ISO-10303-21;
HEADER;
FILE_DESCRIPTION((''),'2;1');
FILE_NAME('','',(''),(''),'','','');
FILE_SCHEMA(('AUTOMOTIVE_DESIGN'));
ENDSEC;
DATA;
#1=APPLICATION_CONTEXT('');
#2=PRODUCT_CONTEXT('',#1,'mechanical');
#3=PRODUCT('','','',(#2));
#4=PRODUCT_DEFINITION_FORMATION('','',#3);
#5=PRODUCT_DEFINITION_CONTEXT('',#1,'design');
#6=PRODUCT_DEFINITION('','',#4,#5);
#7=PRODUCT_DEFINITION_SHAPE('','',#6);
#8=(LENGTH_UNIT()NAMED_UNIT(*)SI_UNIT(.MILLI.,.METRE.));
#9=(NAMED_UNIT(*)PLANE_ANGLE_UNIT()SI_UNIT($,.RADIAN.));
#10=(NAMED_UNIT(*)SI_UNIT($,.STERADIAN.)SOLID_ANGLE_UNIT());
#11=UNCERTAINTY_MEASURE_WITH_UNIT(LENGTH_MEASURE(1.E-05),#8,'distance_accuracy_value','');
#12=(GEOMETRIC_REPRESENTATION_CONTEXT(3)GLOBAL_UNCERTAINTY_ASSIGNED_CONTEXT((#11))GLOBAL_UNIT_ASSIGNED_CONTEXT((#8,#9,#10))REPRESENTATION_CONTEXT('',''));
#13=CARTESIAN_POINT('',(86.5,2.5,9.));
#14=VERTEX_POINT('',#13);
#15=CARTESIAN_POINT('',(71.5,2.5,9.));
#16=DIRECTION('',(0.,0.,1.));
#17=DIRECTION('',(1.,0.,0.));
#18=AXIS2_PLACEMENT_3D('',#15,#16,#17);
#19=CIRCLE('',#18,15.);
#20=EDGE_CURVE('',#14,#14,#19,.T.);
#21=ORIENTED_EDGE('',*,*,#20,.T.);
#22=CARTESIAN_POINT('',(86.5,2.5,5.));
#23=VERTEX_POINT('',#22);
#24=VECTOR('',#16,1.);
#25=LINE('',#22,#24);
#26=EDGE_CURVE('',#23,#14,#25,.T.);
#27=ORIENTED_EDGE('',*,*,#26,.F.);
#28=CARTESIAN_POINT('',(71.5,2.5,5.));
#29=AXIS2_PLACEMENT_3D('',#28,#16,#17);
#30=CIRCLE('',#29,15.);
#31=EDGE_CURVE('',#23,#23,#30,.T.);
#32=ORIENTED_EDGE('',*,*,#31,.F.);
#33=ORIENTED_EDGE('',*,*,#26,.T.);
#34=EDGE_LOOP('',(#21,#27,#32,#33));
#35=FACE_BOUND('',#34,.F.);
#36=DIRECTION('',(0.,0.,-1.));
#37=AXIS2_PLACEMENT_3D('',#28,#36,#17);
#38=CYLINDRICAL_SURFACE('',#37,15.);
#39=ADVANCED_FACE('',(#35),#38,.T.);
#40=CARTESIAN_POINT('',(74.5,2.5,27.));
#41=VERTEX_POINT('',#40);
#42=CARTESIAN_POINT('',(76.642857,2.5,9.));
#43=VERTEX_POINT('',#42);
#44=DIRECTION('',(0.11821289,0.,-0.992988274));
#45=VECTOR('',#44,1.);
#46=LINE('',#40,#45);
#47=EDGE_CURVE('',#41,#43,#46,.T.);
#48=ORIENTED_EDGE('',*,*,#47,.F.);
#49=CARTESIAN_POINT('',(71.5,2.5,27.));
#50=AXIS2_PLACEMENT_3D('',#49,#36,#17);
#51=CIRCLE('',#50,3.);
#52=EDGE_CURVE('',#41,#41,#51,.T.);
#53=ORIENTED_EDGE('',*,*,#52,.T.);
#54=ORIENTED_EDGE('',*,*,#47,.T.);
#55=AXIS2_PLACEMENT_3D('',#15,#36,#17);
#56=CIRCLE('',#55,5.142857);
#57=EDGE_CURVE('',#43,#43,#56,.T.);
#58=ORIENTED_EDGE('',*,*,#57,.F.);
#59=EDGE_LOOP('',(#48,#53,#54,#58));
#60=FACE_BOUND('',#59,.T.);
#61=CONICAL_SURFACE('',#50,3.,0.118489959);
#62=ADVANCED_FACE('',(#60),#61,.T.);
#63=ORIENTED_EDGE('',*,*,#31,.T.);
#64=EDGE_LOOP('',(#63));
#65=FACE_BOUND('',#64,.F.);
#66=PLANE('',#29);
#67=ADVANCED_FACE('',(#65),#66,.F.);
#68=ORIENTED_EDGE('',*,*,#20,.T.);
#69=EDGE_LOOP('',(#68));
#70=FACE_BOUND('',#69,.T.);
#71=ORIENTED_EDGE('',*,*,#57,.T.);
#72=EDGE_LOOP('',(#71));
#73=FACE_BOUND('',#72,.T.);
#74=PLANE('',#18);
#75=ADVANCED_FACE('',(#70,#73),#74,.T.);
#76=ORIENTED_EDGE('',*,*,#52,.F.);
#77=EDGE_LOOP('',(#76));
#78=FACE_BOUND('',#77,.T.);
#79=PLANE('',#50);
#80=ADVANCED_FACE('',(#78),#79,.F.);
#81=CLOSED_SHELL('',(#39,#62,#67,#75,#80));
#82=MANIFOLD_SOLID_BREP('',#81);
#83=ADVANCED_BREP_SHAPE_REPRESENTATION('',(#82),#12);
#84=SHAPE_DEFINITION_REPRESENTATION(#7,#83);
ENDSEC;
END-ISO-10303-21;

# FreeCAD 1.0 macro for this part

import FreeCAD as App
import Part
import Sketcher
Q = App.Units.Quantity

doc = App.newDocument("Part")
body = doc.addObject("PartDesign::Body", "Body")

# Sketch on XZ plane
sketch1 = body.newObject("Sketcher::SketchObject", "Sketch")
sketch1.AttachmentSupport = (doc.getObject("XZ_Plane"), [""])
sketch1.MapMode = "FlatFace"
sketch1.AttachmentOffset = App.Placement(App.Vector(0, 0, -2.5), App.Rotation())
sketch1.addGeometry(Part.LineSegment(App.Vector(71.5, 27, 0), App.Vector(74.5, 27, 0)), False)
sketch1.addGeometry(Part.LineSegment(App.Vector(74.5, 27, 0), App.Vector(77, 6, 0)), False)
sketch1.addGeometry(Part.LineSegment(App.Vector(77, 6, 0), App.Vector(71.5, 6, 0)), False)
sketch1.addGeometry(Part.LineSegment(App.Vector(71.5, 6, 0), App.Vector(71.5, 27, 0)), False)
sketch1.addGeometry(Part.LineSegment(App.Vector(71.5, 27, 0), App.Vector(71.5, 6, 0)), True)  # axis
sketch1.addConstraint(Sketcher.Constraint("Coincident", 0, 2, 1, 1))
sketch1.addConstraint(Sketcher.Constraint("Coincident", 1, 2, 2, 1))
sketch1.addConstraint(Sketcher.Constraint("Coincident", 2, 2, 3, 1))
sketch1.addConstraint(Sketcher.Constraint("Coincident", 3, 2, 0, 1))
sketch1.addConstraint(Sketcher.Constraint("Horizontal", 0))
sketch1.addConstraint(Sketcher.Constraint("Horizontal", 2))
sketch1.addConstraint(Sketcher.Constraint("Vertical", 3))
sketch1.addConstraint(Sketcher.Constraint("Vertical", 4))
sketch1.addConstraint(Sketcher.Constraint("Coincident", 4, 1, 3, 2))
sketch1.addConstraint(Sketcher.Constraint("Horizontal", 1, 2, 4, 2))
sketch1.addConstraint(Sketcher.Constraint("DistanceX", 0, 1, 0, 2, Q("3 mm")))
sketch1.addConstraint(Sketcher.Constraint("DistanceY", 3, 1, 3, 2, Q("21 mm")))
sketch1.addConstraint(Sketcher.Constraint("DistanceX", 2, 2, 2, 1, Q("5.5 mm")))
sketch1.addConstraint(Sketcher.Constraint("DistanceY", -1, 1, 0, 2, Q("27 mm")))
sketch1.addConstraint(Sketcher.Constraint("DistanceX", -1, 1, 1, 2, Q("77 mm")))
revolution = body.newObject("PartDesign::Revolution", "Revolution")
revolution.Profile = sketch1
revolution.ReferenceAxis = (sketch1, ["Axis0"])
revolution.Angle = 360
body2 = doc.addObject("PartDesign::Body", "Body001")

# Sketch on XY plane
sketch2 = body2.newObject("Sketcher::SketchObject", "Sketch001")
sketch2.AttachmentSupport = (doc.getObject("XY_Plane001"), [""])
sketch2.MapMode = "FlatFace"
sketch2.AttachmentOffset = App.Placement(App.Vector(0, 0, 5), App.Rotation())
sketch2.addGeometry(Part.Circle(App.Vector(72, 2, 0), App.Vector(0, 0, 1), 15), False)
sketch2.addConstraint(Sketcher.Constraint("Diameter", 0, Q("30 mm")))
sketch2.addConstraint(Sketcher.Constraint("DistanceX", -1, 1, 0, 3, Q("71.5 mm")))
sketch2.addConstraint(Sketcher.Constraint("DistanceY", -1, 1, 0, 3, Q("2.5 mm")))
pad1 = body2.newObject("PartDesign::Pad", "Pad")
pad1.Profile = sketch2
pad1.Length = 4
doc.recompute()

boolean = body2.newObject("PartDesign::Boolean", "Boolean")
boolean.Type = "Fuse"
boolean.addObjects([body])

doc.recompute()
